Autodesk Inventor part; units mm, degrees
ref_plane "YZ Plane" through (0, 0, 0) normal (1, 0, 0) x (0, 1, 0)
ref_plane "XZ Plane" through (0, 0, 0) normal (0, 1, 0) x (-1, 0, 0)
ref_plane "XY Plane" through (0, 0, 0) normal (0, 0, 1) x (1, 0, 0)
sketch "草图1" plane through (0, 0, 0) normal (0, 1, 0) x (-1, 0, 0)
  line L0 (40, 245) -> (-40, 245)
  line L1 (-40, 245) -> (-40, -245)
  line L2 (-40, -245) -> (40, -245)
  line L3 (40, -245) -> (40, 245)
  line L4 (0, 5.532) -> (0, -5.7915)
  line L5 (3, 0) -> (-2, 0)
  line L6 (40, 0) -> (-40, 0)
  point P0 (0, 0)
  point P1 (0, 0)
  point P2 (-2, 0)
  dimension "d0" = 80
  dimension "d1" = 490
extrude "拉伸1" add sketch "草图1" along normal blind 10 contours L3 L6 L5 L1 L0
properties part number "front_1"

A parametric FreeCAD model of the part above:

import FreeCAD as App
import Part
import Sketcher
Q = App.Units.Quantity


def add_polygon(sketch, points):
    """Adds a closed chain of lines whose ends are joined by coincident constraints."""
    first, n = sketch.GeometryCount, len(points)
    for a, b in zip(points, points[1:] + points[:1]):
        sketch.addGeometry(Part.LineSegment(App.Vector(*a, 0), App.Vector(*b, 0)), False)
    for i in range(n):
        sketch.addConstraint(Sketcher.Constraint("Coincident", first + i, 2, first + (i + 1) % n, 1))

doc = App.newDocument("Part")
body = doc.addObject("PartDesign::Body", "Body")

# Sketch on XZ plane
sketch1 = body.newObject("Sketcher::SketchObject", "Sketch")
sketch1.AttachmentSupport = (doc.getObject("XZ_Plane"), [""])
sketch1.MapMode = "FlatFace"
add_polygon(sketch1, [(-40, 0), (-40, 245), (40, 245), (40, 0)])  # lines 0-3
sketch1.addConstraint(Sketcher.Constraint("Vertical", 0))
sketch1.addConstraint(Sketcher.Constraint("Horizontal", 1))
sketch1.addConstraint(Sketcher.Constraint("Vertical", 2))
sketch1.addConstraint(Sketcher.Constraint("Horizontal", 3))
sketch1.addConstraint(Sketcher.Constraint("Symmetric", 2, 2, 3, 2, -1, 1))
sketch1.addConstraint(Sketcher.Constraint("DistanceX", 1, 1, 1, 2, Q("80 mm")))
sketch1.addConstraint(Sketcher.Constraint("DistanceY", 0, 1, 0, 2, Q("245 mm")))
pad1 = body.newObject("PartDesign::Pad", "Pad")
pad1.Profile = sketch1
pad1.Length = 10
pad1.Reversed = True

doc.recompute()
